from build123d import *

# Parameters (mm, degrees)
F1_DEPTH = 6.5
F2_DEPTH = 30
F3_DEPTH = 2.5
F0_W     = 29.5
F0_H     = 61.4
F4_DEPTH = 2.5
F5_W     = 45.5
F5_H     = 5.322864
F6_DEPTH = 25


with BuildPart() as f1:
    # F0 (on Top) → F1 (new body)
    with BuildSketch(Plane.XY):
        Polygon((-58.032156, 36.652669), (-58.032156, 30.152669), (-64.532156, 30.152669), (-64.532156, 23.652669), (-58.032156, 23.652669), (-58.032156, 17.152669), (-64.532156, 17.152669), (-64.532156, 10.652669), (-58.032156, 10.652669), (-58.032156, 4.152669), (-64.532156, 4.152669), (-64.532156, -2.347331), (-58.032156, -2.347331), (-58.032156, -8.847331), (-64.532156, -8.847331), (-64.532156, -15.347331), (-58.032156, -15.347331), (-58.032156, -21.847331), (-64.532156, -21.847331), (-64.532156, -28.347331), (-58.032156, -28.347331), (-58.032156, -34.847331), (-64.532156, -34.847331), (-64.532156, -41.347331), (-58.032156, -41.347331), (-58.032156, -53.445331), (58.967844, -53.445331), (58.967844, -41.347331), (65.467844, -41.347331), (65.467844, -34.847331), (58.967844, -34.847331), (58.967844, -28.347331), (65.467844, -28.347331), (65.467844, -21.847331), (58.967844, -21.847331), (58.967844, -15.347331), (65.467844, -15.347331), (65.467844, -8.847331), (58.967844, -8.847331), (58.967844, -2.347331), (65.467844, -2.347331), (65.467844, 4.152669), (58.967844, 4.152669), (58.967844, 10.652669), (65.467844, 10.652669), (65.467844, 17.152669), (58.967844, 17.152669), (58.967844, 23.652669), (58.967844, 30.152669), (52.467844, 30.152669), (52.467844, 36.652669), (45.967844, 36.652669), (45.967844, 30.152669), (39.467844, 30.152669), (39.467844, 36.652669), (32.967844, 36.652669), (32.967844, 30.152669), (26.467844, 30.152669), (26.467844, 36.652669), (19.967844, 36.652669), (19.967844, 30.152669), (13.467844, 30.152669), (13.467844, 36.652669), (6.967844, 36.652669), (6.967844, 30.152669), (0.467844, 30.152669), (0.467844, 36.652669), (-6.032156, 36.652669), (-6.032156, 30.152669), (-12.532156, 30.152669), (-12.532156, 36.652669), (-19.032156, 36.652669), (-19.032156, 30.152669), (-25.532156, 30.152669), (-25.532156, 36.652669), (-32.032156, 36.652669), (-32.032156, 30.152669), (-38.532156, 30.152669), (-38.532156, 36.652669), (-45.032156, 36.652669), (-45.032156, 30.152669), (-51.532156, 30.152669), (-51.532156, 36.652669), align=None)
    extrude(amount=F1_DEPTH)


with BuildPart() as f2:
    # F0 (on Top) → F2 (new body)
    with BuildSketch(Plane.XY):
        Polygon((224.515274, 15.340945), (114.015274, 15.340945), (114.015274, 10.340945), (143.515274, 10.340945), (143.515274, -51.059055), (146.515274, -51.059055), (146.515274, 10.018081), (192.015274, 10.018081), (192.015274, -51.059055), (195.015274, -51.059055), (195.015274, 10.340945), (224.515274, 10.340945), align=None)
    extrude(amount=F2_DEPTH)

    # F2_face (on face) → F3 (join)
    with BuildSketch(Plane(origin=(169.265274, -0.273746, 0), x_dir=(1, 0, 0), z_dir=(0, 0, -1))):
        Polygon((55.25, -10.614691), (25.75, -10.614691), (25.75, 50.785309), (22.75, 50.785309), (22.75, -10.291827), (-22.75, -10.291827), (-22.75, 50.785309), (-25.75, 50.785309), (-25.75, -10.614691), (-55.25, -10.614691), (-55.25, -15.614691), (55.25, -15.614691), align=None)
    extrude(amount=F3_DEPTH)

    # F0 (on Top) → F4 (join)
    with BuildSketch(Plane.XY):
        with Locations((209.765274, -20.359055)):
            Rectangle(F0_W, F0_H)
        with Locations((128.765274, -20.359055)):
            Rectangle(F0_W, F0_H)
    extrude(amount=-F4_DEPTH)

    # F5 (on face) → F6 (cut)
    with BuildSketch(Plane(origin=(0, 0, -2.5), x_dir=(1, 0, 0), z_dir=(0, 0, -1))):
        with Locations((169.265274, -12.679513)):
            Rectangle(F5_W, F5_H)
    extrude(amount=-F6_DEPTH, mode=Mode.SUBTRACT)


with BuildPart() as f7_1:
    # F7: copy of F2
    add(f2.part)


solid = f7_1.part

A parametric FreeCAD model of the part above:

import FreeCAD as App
import Part
import Sketcher

V = App.Vector
Q = App.Units.Quantity


def add_polygon(sketch, points):
    """Adds a closed chain of lines whose ends are joined by coincident constraints."""
    first, n = sketch.GeometryCount, len(points)
    for a, b in zip(points, points[1:] + points[:1]):
        sketch.addGeometry(Part.LineSegment(App.Vector(*a, 0), App.Vector(*b, 0)), False)
    for i in range(n):
        sketch.addConstraint(Sketcher.Constraint("Coincident", first + i, 2, first + (i + 1) % n, 1))

doc = App.newDocument("Part")
body = doc.addObject("PartDesign::Body", "Body")

# Sketch on XY plane
sketch1 = body.newObject("Sketcher::SketchObject", "Sketch")
sketch1.AttachmentSupport = (doc.getObject("XY_Plane"), [""])
sketch1.MapMode = "FlatFace"
add_polygon(sketch1, [(-58, 37), (-58, 30), (-65, 30), (-65, 24), (-58, 24), (-58, 17), (-65, 17), (-65, 11), (-58, 11), (-58, 4), (-65, 4), (-65, -2), (-58, -2), (-58, -9), (-65, -9), (-65, -15), (-58, -15), (-58, -22), (-65, -22), (-65, -28), (-58, -28), (-58, -35), (-65, -35), (-65, -41), (-58, -41), (-58, -53), (59, -53), (59, -41), (65, -41), (65, -35), (59, -35), (59, -28), (65, -28), (65, -22), (59, -22), (59, -15), (65, -15), (65, -9), (59, -9), (59, -2), (65, -2), (65, 4), (59, 4), (59, 11), (65, 11), (65, 17), (59, 17), (59, 30), (52, 30), (52, 37), (46, 37), (46, 30), (39, 30), (39, 37), (33, 37), (33, 30), (26, 30), (26, 37), (20, 37), (20, 30), (13, 30), (13, 37), (7, 37), (7, 30), (0, 30), (0, 37), (-6, 37), (-6, 30), (-13, 30), (-13, 37), (-19, 37), (-19, 30), (-26, 30), (-26, 37), (-32, 37), (-32, 30), (-39, 30), (-39, 37), (-45, 37), (-45, 30), (-52, 30), (-52, 37)])  # lines 0-81
sketch1.addConstraint([
    Sketcher.Constraint("Vertical", 0),
    Sketcher.Constraint("Horizontal", 1),
    Sketcher.Constraint("Vertical", 2),
    Sketcher.Constraint("Horizontal", 3),
    Sketcher.Constraint("Vertical", 4),
    Sketcher.Constraint("Horizontal", 5),
    Sketcher.Constraint("Vertical", 6),
    Sketcher.Constraint("Horizontal", 7),
    Sketcher.Constraint("Vertical", 8),
    Sketcher.Constraint("Horizontal", 9),
    Sketcher.Constraint("Vertical", 10),
    Sketcher.Constraint("Horizontal", 11),
    Sketcher.Constraint("Vertical", 12),
    Sketcher.Constraint("Horizontal", 13),
    Sketcher.Constraint("Vertical", 14),
    Sketcher.Constraint("Horizontal", 15),
    Sketcher.Constraint("Vertical", 16),
    Sketcher.Constraint("Horizontal", 17),
    Sketcher.Constraint("Vertical", 18),
    Sketcher.Constraint("Horizontal", 19),
    Sketcher.Constraint("Vertical", 20),
    Sketcher.Constraint("Horizontal", 21),
    Sketcher.Constraint("Vertical", 22),
    Sketcher.Constraint("Horizontal", 23),
    Sketcher.Constraint("Vertical", 24),
    Sketcher.Constraint("Horizontal", 25),
    Sketcher.Constraint("Vertical", 26),
    Sketcher.Constraint("Horizontal", 27),
    Sketcher.Constraint("Vertical", 28),
    Sketcher.Constraint("Horizontal", 29),
    Sketcher.Constraint("Vertical", 30),
    Sketcher.Constraint("Horizontal", 31),
    Sketcher.Constraint("Vertical", 32),
    Sketcher.Constraint("Horizontal", 33),
    Sketcher.Constraint("Vertical", 34),
    Sketcher.Constraint("Horizontal", 35),
    Sketcher.Constraint("Vertical", 36),
    Sketcher.Constraint("Horizontal", 37),
    Sketcher.Constraint("Vertical", 38),
    Sketcher.Constraint("Horizontal", 39),
    Sketcher.Constraint("Vertical", 40),
    Sketcher.Constraint("Horizontal", 41),
    Sketcher.Constraint("Vertical", 42),
    Sketcher.Constraint("Horizontal", 43),
    Sketcher.Constraint("Vertical", 44),
    Sketcher.Constraint("Horizontal", 45),
    Sketcher.Constraint("Vertical", 46),
    Sketcher.Constraint("Horizontal", 47),
    Sketcher.Constraint("Vertical", 48),
    Sketcher.Constraint("Horizontal", 49),
    Sketcher.Constraint("Vertical", 50),
    Sketcher.Constraint("Horizontal", 51),
    Sketcher.Constraint("Vertical", 52),
    Sketcher.Constraint("Horizontal", 53),
    Sketcher.Constraint("Vertical", 54),
    Sketcher.Constraint("Horizontal", 55),
    Sketcher.Constraint("Vertical", 56),
    Sketcher.Constraint("Horizontal", 57),
    Sketcher.Constraint("Vertical", 58),
    Sketcher.Constraint("Horizontal", 59),
    Sketcher.Constraint("Vertical", 60),
    Sketcher.Constraint("Horizontal", 61),
    Sketcher.Constraint("Vertical", 62),
    Sketcher.Constraint("Horizontal", 63),
    Sketcher.Constraint("Vertical", 64),
    Sketcher.Constraint("Horizontal", 65),
    Sketcher.Constraint("Vertical", 66),
    Sketcher.Constraint("Horizontal", 67),
    Sketcher.Constraint("Vertical", 68),
    Sketcher.Constraint("Horizontal", 69),
    Sketcher.Constraint("Vertical", 70),
    Sketcher.Constraint("Horizontal", 71),
    Sketcher.Constraint("Vertical", 72),
    Sketcher.Constraint("Horizontal", 73),
    Sketcher.Constraint("Vertical", 74),
    Sketcher.Constraint("Horizontal", 75),
    Sketcher.Constraint("Vertical", 76),
    Sketcher.Constraint("Horizontal", 77),
    Sketcher.Constraint("Vertical", 78),
    Sketcher.Constraint("Horizontal", 79),
    Sketcher.Constraint("Vertical", 80),
    Sketcher.Constraint("Horizontal", 81),
    Sketcher.Constraint("Horizontal", 23, 2, 26, 2),
    Sketcher.Constraint("Horizontal", 21, 2, 28, 2),
    Sketcher.Constraint("Horizontal", 19, 2, 30, 2),
    Sketcher.Constraint("Horizontal", 17, 2, 32, 2),
    Sketcher.Constraint("Horizontal", 15, 2, 34, 2),
    Sketcher.Constraint("Horizontal", 13, 2, 36, 2),
    Sketcher.Constraint("Horizontal", 11, 2, 38, 2),
    Sketcher.Constraint("Horizontal", 9, 2, 40, 2),
    Sketcher.Constraint("Horizontal", 7, 2, 42, 2),
    Sketcher.Constraint("Horizontal", 5, 2, 44, 2),
    Sketcher.Constraint("Horizontal", 1, 2, 46, 2),
    Sketcher.Constraint("Horizontal", 47, 2, 50, 2),
    Sketcher.Constraint("Horizontal", 49, 2, 52, 2),
    Sketcher.Constraint("Horizontal", 51, 2, 54, 2),
    Sketcher.Constraint("Horizontal", 53, 2, 56, 2),
    Sketcher.Constraint("Horizontal", 55, 2, 58, 2),
    Sketcher.Constraint("Horizontal", 57, 2, 60, 2),
    Sketcher.Constraint("Horizontal", 59, 2, 62, 2),
    Sketcher.Constraint("Horizontal", 61, 2, 64, 2),
    Sketcher.Constraint("Horizontal", 63, 2, 66, 2),
    Sketcher.Constraint("Horizontal", 65, 2, 68, 2),
    Sketcher.Constraint("Horizontal", 67, 2, 70, 2),
    Sketcher.Constraint("Horizontal", 69, 2, 72, 2),
    Sketcher.Constraint("Horizontal", 71, 2, 74, 2),
    Sketcher.Constraint("Horizontal", 73, 2, 76, 2),
    Sketcher.Constraint("Horizontal", 75, 2, 78, 2),
    Sketcher.Constraint("Horizontal", 77, 2, 80, 2),
    Sketcher.Constraint("Vertical", 0, 2, 3, 2),
    Sketcher.Constraint("Vertical", 2, 2, 5, 2),
    Sketcher.Constraint("Vertical", 4, 2, 7, 2),
    Sketcher.Constraint("Vertical", 6, 2, 9, 2),
    Sketcher.Constraint("Vertical", 8, 2, 11, 2),
    Sketcher.Constraint("Vertical", 10, 2, 13, 2),
    Sketcher.Constraint("Vertical", 12, 2, 15, 2),
    Sketcher.Constraint("Vertical", 14, 2, 17, 2),
    Sketcher.Constraint("Vertical", 16, 2, 19, 2),
    Sketcher.Constraint("Vertical", 18, 2, 21, 2),
    Sketcher.Constraint("Vertical", 20, 2, 23, 2),
    Sketcher.Constraint("Vertical", 26, 2, 29, 2),
    Sketcher.Constraint("Vertical", 28, 2, 31, 2),
    Sketcher.Constraint("Vertical", 30, 2, 33, 2),
    Sketcher.Constraint("Vertical", 32, 2, 35, 2),
    Sketcher.Constraint("Vertical", 34, 2, 37, 2),
    Sketcher.Constraint("Vertical", 36, 2, 39, 2),
    Sketcher.Constraint("Vertical", 38, 2, 41, 2),
    Sketcher.Constraint("Vertical", 40, 2, 43, 2),
    Sketcher.Constraint("Vertical", 42, 2, 45, 2),
    Sketcher.Constraint("Equal", 23, 27),
    Sketcher.Constraint("Equal", 45, 47),
    Sketcher.Constraint("Equal", 47, 49),
    Sketcher.Constraint("Equal", 49, 51),
    Sketcher.Constraint("Equal", 51, 53),
    Sketcher.Constraint("Equal", 53, 55),
    Sketcher.Constraint("Equal", 55, 57),
    Sketcher.Constraint("Equal", 57, 59),
    Sketcher.Constraint("Equal", 59, 61),
    Sketcher.Constraint("Equal", 61, 63),
    Sketcher.Constraint("Equal", 63, 65),
    Sketcher.Constraint("Equal", 65, 67),
    Sketcher.Constraint("Equal", 67, 69),
    Sketcher.Constraint("Equal", 69, 71),
    Sketcher.Constraint("Equal", 71, 73),
    Sketcher.Constraint("Equal", 73, 75),
    Sketcher.Constraint("Equal", 75, 77),
    Sketcher.Constraint("Equal", 77, 79),
    Sketcher.Constraint("Equal", 79, 81),
    Sketcher.Constraint("Equal", 81, 0),
    Sketcher.Constraint("Equal", 0, 2),
    Sketcher.Constraint("Equal", 2, 4),
    Sketcher.Constraint("Equal", 4, 6),
    Sketcher.Constraint("Equal", 6, 8),
    Sketcher.Constraint("Equal", 8, 10),
    Sketcher.Constraint("Equal", 10, 12),
    Sketcher.Constraint("Equal", 12, 14),
    Sketcher.Constraint("Equal", 14, 16),
    Sketcher.Constraint("Equal", 16, 18),
    Sketcher.Constraint("Equal", 18, 20),
    Sketcher.Constraint("Equal", 20, 22),
    Sketcher.Constraint("DistanceX", 25, 1, 25, 2, Q("117 mm")),
    Sketcher.Constraint("DistanceY", 24, 2, 24, 1, Q("12.098 mm")),
    Sketcher.Constraint("DistanceY", -1, 1, 0, 2, Q("30.152669 mm")),
    Sketcher.Constraint("DistanceX", 0, 2, -1, 1, Q("58.032156 mm")),
])
pad1 = body.newObject("PartDesign::Pad", "Pad")
pad1.Profile = sketch1
pad1.Length = 6.5
body2 = doc.addObject("PartDesign::Body", "Body001")

# Sketch on XY plane
sketch2 = body2.newObject("Sketcher::SketchObject", "Sketch001")
sketch2.AttachmentSupport = (doc.getObject("XY_Plane001"), [""])
sketch2.MapMode = "FlatFace"
add_polygon(sketch2, [(224.5, 15.3), (114, 15.3), (114, 10.3), (143.5, 10.3), (143.5, -51.1), (146.5, -51.1), (146.5, 10), (192, 10), (192, -51.1), (195, -51.1), (195, 10.3), (224.5, 10.3)])  # lines 0-11
sketch2.addConstraint([
    Sketcher.Constraint("Horizontal", 0),
    Sketcher.Constraint("Vertical", 1),
    Sketcher.Constraint("Horizontal", 2),
    Sketcher.Constraint("Vertical", 3),
    Sketcher.Constraint("Horizontal", 4),
    Sketcher.Constraint("Vertical", 5),
    Sketcher.Constraint("Horizontal", 6),
    Sketcher.Constraint("Vertical", 7),
    Sketcher.Constraint("Horizontal", 8),
    Sketcher.Constraint("Vertical", 9),
    Sketcher.Constraint("Horizontal", 10),
    Sketcher.Constraint("Vertical", 11),
    Sketcher.Constraint("Horizontal", 4, 2, 7, 2),
    Sketcher.Constraint("Horizontal", 2, 2, 9, 2),
    Sketcher.Constraint("Equal", 4, 8),
    Sketcher.Constraint("Equal", 2, 10),
    Sketcher.Constraint("DistanceX", 4, 1, 4, 2, Q("3 mm")),
    Sketcher.Constraint("DistanceY", 1, 2, 1, 1, Q("5 mm")),
    Sketcher.Constraint("DistanceX", 0, 2, 0, 1, Q("110.5 mm")),
    Sketcher.Constraint("DistanceX", 2, 1, 2, 2, Q("29.5 mm")),
    Sketcher.Constraint("DistanceY", 3, 2, 3, 1, Q("61.4 mm")),
    Sketcher.Constraint("DistanceY", 5, 1, 5, 2, Q("61.077136 mm")),
    Sketcher.Constraint("DistanceY", -1, 1, 5, 2, Q("10.018081 mm")),
    Sketcher.Constraint("DistanceX", -1, 1, 0, 2, Q("114.015274 mm")),
])
pad2 = body2.newObject("PartDesign::Pad", "Pad001")
pad2.Profile = sketch2
pad2.Length = 30

# Sketch on XY plane
sketch3 = body2.newObject("Sketcher::SketchObject", "Sketch002")
sketch3.AttachmentSupport = (doc.getObject("XY_Plane001"), [""])
sketch3.MapMode = "FlatFace"
add_polygon(sketch3, [(224.5, 10.3), (195, 10.3), (195, -51.1), (192, -51.1), (192, 10), (146.5, 10), (146.5, -51.1), (143.5, -51.1), (143.5, 10.3), (114, 10.3), (114, 15.3), (224.5, 15.3)])  # lines 0-11
sketch3.addConstraint([
    Sketcher.Constraint("Horizontal", 0),
    Sketcher.Constraint("Vertical", 1),
    Sketcher.Constraint("Horizontal", 2),
    Sketcher.Constraint("Vertical", 3),
    Sketcher.Constraint("Horizontal", 4),
    Sketcher.Constraint("Vertical", 5),
    Sketcher.Constraint("Horizontal", 6),
    Sketcher.Constraint("Vertical", 7),
    Sketcher.Constraint("Horizontal", 8),
    Sketcher.Constraint("Vertical", 9),
    Sketcher.Constraint("Horizontal", 10),
    Sketcher.Constraint("Vertical", 11),
    Sketcher.Constraint("Horizontal", 2, 2, 5, 2),
    Sketcher.Constraint("Horizontal", 0, 2, 7, 2),
    Sketcher.Constraint("Equal", 2, 6),
    Sketcher.Constraint("Equal", 0, 8),
    Sketcher.Constraint("DistanceX", 2, 2, 2, 1, Q("3 mm")),
    Sketcher.Constraint("DistanceY", 9, 1, 9, 2, Q("5 mm")),
    Sketcher.Constraint("DistanceX", 0, 2, 0, 1, Q("29.5 mm")),
    Sketcher.Constraint("DistanceX", 4, 2, 4, 1, Q("45.5 mm")),
    Sketcher.Constraint("DistanceY", 1, 2, 1, 1, Q("61.4 mm")),
    Sketcher.Constraint("DistanceY", 3, 1, 3, 2, Q("61.077136 mm")),
    Sketcher.Constraint("DistanceY", -1, 1, 3, 2, Q("10.018081 mm")),
    Sketcher.Constraint("DistanceX", -1, 1, 0, 2, Q("195.015274 mm")),
])
pad3 = body2.newObject("PartDesign::Pad", "Pad002")
pad3.Profile = sketch3
pad3.Length = 2.5
pad3.Reversed = True

# Sketch on XY plane
sketch4 = body2.newObject("Sketcher::SketchObject", "Sketch003")
sketch4.AttachmentSupport = (doc.getObject("XY_Plane001"), [""])
sketch4.MapMode = "FlatFace"
add_polygon(sketch4, [(195, 10), (195, -51), (225, -51), (225, 10)])  # lines 0-3
add_polygon(sketch4, [(114, 10), (114, -51), (144, -51), (144, 10)])  # lines 4-7
sketch4.addConstraint([
    Sketcher.Constraint("Vertical", 0),
    Sketcher.Constraint("Horizontal", 1),
    Sketcher.Constraint("Vertical", 2),
    Sketcher.Constraint("Horizontal", 3),
    Sketcher.Constraint("Vertical", 4),
    Sketcher.Constraint("Horizontal", 5),
    Sketcher.Constraint("Vertical", 6),
    Sketcher.Constraint("Horizontal", 7),
    Sketcher.Constraint("Horizontal", 1, 2, 4, 2),
    Sketcher.Constraint("Horizontal", 3, 2, 6, 2),
    Sketcher.Constraint("Equal", 3, 5),
    Sketcher.Constraint("DistanceX", 1, 1, 1, 2, Q("29.5 mm")),
    Sketcher.Constraint("DistanceY", 0, 2, 0, 1, Q("61.4 mm")),
    Sketcher.Constraint("DistanceX", 4, 2, 0, 2, Q("81 mm")),
    Sketcher.Constraint("DistanceX", -1, 1, 0, 2, Q("195.015274 mm")),
    Sketcher.Constraint("DistanceY", 0, 2, -1, 1, Q("51.059055 mm")),
])
pad4 = body2.newObject("PartDesign::Pad", "Pad003")
pad4.Profile = sketch4
pad4.Length = 2.5
pad4.Reversed = True

# Sketch on XY plane
sketch5 = body2.newObject("Sketcher::SketchObject", "Sketch004")
sketch5.AttachmentSupport = (doc.getObject("XY_Plane001"), [""])
sketch5.MapMode = "FlatFace"
sketch5.AttachmentOffset = App.Placement(V(0, 0, -2.5), App.Rotation())
add_polygon(sketch5, [(147, 10), (147, 15), (192, 15), (192, 10)])  # lines 0-3
sketch5.addConstraint([
    Sketcher.Constraint("Vertical", 0),
    Sketcher.Constraint("Horizontal", 1),
    Sketcher.Constraint("Vertical", 2),
    Sketcher.Constraint("Horizontal", 3),
    Sketcher.Constraint("DistanceX", 1, 1, 1, 2, Q("45.5 mm")),
    Sketcher.Constraint("DistanceY", 0, 1, 0, 2, Q("5.322864 mm")),
    Sketcher.Constraint("DistanceY", -1, 1, 2, 2, Q("10.018081 mm")),
    Sketcher.Constraint("DistanceX", -1, 1, 0, 2, Q("146.515274 mm")),
])
pocket1 = body2.newObject("PartDesign::Pocket", "Pocket")
pocket1.Profile = sketch5
pocket1.Length = 25
pocket1.Reversed = True
body.Visibility = False

doc.recompute()
